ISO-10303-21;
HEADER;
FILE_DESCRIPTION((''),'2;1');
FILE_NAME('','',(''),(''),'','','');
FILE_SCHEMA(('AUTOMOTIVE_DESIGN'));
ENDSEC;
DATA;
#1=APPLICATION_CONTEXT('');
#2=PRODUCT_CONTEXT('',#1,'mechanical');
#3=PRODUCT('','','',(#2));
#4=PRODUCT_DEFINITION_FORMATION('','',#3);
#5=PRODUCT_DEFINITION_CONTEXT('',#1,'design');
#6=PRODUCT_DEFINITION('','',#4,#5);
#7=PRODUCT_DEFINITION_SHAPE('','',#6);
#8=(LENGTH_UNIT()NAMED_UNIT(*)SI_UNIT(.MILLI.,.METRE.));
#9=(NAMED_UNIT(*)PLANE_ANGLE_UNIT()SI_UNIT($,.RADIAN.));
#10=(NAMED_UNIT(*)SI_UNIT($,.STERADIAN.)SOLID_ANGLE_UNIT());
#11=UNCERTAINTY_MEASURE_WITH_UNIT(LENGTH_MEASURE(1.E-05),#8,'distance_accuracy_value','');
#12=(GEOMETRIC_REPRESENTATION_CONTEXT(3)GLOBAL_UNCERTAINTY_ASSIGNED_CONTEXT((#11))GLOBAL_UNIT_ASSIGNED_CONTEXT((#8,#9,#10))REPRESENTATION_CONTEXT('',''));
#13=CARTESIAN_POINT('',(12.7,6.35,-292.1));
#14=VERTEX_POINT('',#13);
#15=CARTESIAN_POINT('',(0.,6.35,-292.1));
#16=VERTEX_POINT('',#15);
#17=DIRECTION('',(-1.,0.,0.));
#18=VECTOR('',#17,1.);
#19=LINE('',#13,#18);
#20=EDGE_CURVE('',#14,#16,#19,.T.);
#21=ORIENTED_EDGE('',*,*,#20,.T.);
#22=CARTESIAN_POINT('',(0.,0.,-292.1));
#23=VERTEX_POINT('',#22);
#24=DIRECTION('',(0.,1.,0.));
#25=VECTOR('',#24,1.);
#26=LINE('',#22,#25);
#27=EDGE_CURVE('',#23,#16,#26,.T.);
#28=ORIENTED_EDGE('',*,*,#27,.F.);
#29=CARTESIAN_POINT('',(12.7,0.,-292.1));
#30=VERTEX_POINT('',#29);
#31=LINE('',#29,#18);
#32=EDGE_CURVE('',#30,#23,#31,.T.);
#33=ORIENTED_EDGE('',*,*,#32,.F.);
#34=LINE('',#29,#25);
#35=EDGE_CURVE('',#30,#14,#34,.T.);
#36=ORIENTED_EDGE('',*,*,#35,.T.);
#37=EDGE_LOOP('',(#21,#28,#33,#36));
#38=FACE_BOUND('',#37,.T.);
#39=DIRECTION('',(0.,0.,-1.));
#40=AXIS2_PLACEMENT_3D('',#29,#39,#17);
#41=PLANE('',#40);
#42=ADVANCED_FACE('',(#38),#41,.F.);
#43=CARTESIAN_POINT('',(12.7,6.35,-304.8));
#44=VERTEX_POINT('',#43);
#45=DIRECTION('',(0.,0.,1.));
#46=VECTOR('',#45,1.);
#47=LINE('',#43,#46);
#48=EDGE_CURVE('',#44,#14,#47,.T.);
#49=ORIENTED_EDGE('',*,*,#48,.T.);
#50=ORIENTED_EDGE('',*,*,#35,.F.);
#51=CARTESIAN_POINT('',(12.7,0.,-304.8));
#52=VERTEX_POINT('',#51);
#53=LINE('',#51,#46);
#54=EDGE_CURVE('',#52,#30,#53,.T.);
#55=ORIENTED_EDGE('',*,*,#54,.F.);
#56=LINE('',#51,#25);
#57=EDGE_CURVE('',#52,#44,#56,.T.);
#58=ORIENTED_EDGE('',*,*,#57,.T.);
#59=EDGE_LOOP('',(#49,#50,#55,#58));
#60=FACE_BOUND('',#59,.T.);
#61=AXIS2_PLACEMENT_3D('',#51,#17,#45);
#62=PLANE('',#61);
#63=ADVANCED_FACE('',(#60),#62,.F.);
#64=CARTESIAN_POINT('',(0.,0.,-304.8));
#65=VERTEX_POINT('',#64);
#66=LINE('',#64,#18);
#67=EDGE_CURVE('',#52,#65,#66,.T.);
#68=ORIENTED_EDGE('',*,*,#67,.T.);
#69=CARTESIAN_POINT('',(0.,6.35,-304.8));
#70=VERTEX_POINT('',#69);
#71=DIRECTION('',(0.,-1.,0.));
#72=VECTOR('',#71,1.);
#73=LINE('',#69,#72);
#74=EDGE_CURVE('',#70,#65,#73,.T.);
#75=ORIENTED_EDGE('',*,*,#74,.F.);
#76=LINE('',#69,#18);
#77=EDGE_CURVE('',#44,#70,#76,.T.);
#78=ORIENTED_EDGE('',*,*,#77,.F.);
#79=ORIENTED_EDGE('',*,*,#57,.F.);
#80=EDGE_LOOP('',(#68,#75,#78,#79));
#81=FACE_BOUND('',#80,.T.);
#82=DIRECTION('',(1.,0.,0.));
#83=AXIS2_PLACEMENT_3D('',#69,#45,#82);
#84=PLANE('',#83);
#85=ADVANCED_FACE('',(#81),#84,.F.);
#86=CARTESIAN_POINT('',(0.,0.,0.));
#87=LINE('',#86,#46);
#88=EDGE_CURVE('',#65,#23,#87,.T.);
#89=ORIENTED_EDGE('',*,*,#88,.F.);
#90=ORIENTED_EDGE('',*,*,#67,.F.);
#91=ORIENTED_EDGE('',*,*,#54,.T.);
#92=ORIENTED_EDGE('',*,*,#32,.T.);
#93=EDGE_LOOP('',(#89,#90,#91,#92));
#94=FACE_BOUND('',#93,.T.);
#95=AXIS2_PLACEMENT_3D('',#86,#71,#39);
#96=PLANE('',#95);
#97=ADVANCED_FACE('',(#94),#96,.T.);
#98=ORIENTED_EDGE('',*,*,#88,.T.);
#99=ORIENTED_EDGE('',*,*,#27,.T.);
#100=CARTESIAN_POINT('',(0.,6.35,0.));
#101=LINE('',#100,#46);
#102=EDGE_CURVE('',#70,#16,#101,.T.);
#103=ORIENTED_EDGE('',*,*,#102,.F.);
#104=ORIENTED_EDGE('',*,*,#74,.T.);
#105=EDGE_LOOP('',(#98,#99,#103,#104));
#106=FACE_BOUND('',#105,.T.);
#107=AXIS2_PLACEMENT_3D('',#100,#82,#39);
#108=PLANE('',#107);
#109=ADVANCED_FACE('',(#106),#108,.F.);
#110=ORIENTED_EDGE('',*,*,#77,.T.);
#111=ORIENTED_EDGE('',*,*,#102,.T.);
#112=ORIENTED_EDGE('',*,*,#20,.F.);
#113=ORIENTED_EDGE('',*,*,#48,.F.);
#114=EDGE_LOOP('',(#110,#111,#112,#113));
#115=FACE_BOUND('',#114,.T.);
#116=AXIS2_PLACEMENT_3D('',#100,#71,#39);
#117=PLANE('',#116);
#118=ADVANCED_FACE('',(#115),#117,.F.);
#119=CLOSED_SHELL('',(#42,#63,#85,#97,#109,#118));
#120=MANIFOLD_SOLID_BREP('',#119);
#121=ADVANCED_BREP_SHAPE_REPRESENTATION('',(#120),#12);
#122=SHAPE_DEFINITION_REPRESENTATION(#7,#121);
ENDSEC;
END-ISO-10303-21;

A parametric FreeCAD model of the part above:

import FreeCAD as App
import Part
import Sketcher
from FreeCAD import Vector
Q = App.Units.Quantity

doc = App.newDocument("Part")
body = doc.addObject("PartDesign::Body", "Body")

# Sketch on XZ plane
sketch1 = body.newObject("Sketcher::SketchObject", "Sketch")
sketch1.AttachmentSupport = (doc.getObject("XZ_Plane"), [""])
sketch1.MapMode = "FlatFace"
sketch1.addGeometry(Part.LineSegment(Vector(0, -304.8, 0), Vector(0, 0, 0)), False)
sketch1.addGeometry(Part.LineSegment(Vector(0, 0, 0), Vector(304.8, 0, 0)), False)
sketch1.addGeometry(Part.LineSegment(Vector(304.8, 0, 0), Vector(304.8, -304.8, 0)), False)
sketch1.addGeometry(Part.LineSegment(Vector(304.8, -304.8, 0), Vector(0, -304.8, 0)), False)
sketch1.addConstraint(Sketcher.Constraint("Coincident", 0, 2, 1, 1))
sketch1.addConstraint(Sketcher.Constraint("Coincident", 1, 2, 2, 1))
sketch1.addConstraint(Sketcher.Constraint("Coincident", 2, 2, 3, 1))
sketch1.addConstraint(Sketcher.Constraint("Coincident", 3, 2, 0, 1))
sketch1.addConstraint(Sketcher.Constraint("Vertical", 0))
sketch1.addConstraint(Sketcher.Constraint("Horizontal", 1))
sketch1.addConstraint(Sketcher.Constraint("Vertical", 2))
sketch1.addConstraint(Sketcher.Constraint("Horizontal", 3))
sketch1.addConstraint(Sketcher.Constraint("Coincident", 0, 2, -1, 1))
sketch1.addConstraint(Sketcher.Constraint("Equal", 3, 0))
sketch1.addConstraint(Sketcher.Constraint("DistanceX", 1, 1, 1, 2, Q("12 in")))
pad1 = body.newObject("PartDesign::Pad", "Pad")
pad1.Profile = sketch1
pad1.Length = Q("0.25 in")
pad1.Reversed = True

# Sketch on XZ plane
sketch2 = body.newObject("Sketcher::SketchObject", "Sketch001")
sketch2.AttachmentSupport = (doc.getObject("XZ_Plane"), [""])
sketch2.MapMode = "FlatFace"
sketch2.AttachmentOffset = App.Placement(Vector(0, 0, -0.25 * 25.4), App.Rotation())
sketch2.addGeometry(Part.LineSegment(Vector(12.7, -304.8, 0), Vector(12.7, -292.1, 0)), False)
sketch2.addGeometry(Part.LineSegment(Vector(12.7, -292.1, 0), Vector(0, -292.1, 0)), False)
sketch2.addGeometry(Part.LineSegment(Vector(0, -292.1, 0), Vector(0, 0, 0)), False)
sketch2.addGeometry(Part.LineSegment(Vector(0, 0, 0), Vector(304.8, 0, 0)), False)
sketch2.addGeometry(Part.LineSegment(Vector(304.8, 0, 0), Vector(304.8, -304.8, 0)), False)
sketch2.addGeometry(Part.LineSegment(Vector(304.8, -304.8, 0), Vector(12.7, -304.8, 0)), False)
sketch2.addConstraint(Sketcher.Constraint("Coincident", 0, 2, 1, 1))
sketch2.addConstraint(Sketcher.Constraint("Coincident", 1, 2, 2, 1))
sketch2.addConstraint(Sketcher.Constraint("Coincident", 2, 2, 3, 1))
sketch2.addConstraint(Sketcher.Constraint("Coincident", 3, 2, 4, 1))
sketch2.addConstraint(Sketcher.Constraint("Coincident", 4, 2, 5, 1))
sketch2.addConstraint(Sketcher.Constraint("Coincident", 5, 2, 0, 1))
sketch2.addConstraint(Sketcher.Constraint("Vertical", 0))
sketch2.addConstraint(Sketcher.Constraint("Horizontal", 1))
sketch2.addConstraint(Sketcher.Constraint("Vertical", 2))
sketch2.addConstraint(Sketcher.Constraint("Horizontal", 3))
sketch2.addConstraint(Sketcher.Constraint("Vertical", 4))
sketch2.addConstraint(Sketcher.Constraint("Horizontal", 5))
sketch2.addConstraint(Sketcher.Constraint("Coincident", 2, 2, -1, 1))
sketch2.addConstraint(Sketcher.Constraint("Equal", 1, 0))
sketch2.addConstraint(Sketcher.Constraint("Equal", 5, 2))
sketch2.addConstraint(Sketcher.Constraint("DistanceX", 3, 1, 3, 2, Q("12 in")))
sketch2.addConstraint(Sketcher.Constraint("DistanceX", 1, 2, 1, 1, Q("0.5 in")))
pocket1 = body.newObject("PartDesign::Pocket", "Pocket")
pocket1.Profile = sketch2
pocket1.Length = Q("0.25 in")
pocket1.Reversed = True

doc.recompute()
